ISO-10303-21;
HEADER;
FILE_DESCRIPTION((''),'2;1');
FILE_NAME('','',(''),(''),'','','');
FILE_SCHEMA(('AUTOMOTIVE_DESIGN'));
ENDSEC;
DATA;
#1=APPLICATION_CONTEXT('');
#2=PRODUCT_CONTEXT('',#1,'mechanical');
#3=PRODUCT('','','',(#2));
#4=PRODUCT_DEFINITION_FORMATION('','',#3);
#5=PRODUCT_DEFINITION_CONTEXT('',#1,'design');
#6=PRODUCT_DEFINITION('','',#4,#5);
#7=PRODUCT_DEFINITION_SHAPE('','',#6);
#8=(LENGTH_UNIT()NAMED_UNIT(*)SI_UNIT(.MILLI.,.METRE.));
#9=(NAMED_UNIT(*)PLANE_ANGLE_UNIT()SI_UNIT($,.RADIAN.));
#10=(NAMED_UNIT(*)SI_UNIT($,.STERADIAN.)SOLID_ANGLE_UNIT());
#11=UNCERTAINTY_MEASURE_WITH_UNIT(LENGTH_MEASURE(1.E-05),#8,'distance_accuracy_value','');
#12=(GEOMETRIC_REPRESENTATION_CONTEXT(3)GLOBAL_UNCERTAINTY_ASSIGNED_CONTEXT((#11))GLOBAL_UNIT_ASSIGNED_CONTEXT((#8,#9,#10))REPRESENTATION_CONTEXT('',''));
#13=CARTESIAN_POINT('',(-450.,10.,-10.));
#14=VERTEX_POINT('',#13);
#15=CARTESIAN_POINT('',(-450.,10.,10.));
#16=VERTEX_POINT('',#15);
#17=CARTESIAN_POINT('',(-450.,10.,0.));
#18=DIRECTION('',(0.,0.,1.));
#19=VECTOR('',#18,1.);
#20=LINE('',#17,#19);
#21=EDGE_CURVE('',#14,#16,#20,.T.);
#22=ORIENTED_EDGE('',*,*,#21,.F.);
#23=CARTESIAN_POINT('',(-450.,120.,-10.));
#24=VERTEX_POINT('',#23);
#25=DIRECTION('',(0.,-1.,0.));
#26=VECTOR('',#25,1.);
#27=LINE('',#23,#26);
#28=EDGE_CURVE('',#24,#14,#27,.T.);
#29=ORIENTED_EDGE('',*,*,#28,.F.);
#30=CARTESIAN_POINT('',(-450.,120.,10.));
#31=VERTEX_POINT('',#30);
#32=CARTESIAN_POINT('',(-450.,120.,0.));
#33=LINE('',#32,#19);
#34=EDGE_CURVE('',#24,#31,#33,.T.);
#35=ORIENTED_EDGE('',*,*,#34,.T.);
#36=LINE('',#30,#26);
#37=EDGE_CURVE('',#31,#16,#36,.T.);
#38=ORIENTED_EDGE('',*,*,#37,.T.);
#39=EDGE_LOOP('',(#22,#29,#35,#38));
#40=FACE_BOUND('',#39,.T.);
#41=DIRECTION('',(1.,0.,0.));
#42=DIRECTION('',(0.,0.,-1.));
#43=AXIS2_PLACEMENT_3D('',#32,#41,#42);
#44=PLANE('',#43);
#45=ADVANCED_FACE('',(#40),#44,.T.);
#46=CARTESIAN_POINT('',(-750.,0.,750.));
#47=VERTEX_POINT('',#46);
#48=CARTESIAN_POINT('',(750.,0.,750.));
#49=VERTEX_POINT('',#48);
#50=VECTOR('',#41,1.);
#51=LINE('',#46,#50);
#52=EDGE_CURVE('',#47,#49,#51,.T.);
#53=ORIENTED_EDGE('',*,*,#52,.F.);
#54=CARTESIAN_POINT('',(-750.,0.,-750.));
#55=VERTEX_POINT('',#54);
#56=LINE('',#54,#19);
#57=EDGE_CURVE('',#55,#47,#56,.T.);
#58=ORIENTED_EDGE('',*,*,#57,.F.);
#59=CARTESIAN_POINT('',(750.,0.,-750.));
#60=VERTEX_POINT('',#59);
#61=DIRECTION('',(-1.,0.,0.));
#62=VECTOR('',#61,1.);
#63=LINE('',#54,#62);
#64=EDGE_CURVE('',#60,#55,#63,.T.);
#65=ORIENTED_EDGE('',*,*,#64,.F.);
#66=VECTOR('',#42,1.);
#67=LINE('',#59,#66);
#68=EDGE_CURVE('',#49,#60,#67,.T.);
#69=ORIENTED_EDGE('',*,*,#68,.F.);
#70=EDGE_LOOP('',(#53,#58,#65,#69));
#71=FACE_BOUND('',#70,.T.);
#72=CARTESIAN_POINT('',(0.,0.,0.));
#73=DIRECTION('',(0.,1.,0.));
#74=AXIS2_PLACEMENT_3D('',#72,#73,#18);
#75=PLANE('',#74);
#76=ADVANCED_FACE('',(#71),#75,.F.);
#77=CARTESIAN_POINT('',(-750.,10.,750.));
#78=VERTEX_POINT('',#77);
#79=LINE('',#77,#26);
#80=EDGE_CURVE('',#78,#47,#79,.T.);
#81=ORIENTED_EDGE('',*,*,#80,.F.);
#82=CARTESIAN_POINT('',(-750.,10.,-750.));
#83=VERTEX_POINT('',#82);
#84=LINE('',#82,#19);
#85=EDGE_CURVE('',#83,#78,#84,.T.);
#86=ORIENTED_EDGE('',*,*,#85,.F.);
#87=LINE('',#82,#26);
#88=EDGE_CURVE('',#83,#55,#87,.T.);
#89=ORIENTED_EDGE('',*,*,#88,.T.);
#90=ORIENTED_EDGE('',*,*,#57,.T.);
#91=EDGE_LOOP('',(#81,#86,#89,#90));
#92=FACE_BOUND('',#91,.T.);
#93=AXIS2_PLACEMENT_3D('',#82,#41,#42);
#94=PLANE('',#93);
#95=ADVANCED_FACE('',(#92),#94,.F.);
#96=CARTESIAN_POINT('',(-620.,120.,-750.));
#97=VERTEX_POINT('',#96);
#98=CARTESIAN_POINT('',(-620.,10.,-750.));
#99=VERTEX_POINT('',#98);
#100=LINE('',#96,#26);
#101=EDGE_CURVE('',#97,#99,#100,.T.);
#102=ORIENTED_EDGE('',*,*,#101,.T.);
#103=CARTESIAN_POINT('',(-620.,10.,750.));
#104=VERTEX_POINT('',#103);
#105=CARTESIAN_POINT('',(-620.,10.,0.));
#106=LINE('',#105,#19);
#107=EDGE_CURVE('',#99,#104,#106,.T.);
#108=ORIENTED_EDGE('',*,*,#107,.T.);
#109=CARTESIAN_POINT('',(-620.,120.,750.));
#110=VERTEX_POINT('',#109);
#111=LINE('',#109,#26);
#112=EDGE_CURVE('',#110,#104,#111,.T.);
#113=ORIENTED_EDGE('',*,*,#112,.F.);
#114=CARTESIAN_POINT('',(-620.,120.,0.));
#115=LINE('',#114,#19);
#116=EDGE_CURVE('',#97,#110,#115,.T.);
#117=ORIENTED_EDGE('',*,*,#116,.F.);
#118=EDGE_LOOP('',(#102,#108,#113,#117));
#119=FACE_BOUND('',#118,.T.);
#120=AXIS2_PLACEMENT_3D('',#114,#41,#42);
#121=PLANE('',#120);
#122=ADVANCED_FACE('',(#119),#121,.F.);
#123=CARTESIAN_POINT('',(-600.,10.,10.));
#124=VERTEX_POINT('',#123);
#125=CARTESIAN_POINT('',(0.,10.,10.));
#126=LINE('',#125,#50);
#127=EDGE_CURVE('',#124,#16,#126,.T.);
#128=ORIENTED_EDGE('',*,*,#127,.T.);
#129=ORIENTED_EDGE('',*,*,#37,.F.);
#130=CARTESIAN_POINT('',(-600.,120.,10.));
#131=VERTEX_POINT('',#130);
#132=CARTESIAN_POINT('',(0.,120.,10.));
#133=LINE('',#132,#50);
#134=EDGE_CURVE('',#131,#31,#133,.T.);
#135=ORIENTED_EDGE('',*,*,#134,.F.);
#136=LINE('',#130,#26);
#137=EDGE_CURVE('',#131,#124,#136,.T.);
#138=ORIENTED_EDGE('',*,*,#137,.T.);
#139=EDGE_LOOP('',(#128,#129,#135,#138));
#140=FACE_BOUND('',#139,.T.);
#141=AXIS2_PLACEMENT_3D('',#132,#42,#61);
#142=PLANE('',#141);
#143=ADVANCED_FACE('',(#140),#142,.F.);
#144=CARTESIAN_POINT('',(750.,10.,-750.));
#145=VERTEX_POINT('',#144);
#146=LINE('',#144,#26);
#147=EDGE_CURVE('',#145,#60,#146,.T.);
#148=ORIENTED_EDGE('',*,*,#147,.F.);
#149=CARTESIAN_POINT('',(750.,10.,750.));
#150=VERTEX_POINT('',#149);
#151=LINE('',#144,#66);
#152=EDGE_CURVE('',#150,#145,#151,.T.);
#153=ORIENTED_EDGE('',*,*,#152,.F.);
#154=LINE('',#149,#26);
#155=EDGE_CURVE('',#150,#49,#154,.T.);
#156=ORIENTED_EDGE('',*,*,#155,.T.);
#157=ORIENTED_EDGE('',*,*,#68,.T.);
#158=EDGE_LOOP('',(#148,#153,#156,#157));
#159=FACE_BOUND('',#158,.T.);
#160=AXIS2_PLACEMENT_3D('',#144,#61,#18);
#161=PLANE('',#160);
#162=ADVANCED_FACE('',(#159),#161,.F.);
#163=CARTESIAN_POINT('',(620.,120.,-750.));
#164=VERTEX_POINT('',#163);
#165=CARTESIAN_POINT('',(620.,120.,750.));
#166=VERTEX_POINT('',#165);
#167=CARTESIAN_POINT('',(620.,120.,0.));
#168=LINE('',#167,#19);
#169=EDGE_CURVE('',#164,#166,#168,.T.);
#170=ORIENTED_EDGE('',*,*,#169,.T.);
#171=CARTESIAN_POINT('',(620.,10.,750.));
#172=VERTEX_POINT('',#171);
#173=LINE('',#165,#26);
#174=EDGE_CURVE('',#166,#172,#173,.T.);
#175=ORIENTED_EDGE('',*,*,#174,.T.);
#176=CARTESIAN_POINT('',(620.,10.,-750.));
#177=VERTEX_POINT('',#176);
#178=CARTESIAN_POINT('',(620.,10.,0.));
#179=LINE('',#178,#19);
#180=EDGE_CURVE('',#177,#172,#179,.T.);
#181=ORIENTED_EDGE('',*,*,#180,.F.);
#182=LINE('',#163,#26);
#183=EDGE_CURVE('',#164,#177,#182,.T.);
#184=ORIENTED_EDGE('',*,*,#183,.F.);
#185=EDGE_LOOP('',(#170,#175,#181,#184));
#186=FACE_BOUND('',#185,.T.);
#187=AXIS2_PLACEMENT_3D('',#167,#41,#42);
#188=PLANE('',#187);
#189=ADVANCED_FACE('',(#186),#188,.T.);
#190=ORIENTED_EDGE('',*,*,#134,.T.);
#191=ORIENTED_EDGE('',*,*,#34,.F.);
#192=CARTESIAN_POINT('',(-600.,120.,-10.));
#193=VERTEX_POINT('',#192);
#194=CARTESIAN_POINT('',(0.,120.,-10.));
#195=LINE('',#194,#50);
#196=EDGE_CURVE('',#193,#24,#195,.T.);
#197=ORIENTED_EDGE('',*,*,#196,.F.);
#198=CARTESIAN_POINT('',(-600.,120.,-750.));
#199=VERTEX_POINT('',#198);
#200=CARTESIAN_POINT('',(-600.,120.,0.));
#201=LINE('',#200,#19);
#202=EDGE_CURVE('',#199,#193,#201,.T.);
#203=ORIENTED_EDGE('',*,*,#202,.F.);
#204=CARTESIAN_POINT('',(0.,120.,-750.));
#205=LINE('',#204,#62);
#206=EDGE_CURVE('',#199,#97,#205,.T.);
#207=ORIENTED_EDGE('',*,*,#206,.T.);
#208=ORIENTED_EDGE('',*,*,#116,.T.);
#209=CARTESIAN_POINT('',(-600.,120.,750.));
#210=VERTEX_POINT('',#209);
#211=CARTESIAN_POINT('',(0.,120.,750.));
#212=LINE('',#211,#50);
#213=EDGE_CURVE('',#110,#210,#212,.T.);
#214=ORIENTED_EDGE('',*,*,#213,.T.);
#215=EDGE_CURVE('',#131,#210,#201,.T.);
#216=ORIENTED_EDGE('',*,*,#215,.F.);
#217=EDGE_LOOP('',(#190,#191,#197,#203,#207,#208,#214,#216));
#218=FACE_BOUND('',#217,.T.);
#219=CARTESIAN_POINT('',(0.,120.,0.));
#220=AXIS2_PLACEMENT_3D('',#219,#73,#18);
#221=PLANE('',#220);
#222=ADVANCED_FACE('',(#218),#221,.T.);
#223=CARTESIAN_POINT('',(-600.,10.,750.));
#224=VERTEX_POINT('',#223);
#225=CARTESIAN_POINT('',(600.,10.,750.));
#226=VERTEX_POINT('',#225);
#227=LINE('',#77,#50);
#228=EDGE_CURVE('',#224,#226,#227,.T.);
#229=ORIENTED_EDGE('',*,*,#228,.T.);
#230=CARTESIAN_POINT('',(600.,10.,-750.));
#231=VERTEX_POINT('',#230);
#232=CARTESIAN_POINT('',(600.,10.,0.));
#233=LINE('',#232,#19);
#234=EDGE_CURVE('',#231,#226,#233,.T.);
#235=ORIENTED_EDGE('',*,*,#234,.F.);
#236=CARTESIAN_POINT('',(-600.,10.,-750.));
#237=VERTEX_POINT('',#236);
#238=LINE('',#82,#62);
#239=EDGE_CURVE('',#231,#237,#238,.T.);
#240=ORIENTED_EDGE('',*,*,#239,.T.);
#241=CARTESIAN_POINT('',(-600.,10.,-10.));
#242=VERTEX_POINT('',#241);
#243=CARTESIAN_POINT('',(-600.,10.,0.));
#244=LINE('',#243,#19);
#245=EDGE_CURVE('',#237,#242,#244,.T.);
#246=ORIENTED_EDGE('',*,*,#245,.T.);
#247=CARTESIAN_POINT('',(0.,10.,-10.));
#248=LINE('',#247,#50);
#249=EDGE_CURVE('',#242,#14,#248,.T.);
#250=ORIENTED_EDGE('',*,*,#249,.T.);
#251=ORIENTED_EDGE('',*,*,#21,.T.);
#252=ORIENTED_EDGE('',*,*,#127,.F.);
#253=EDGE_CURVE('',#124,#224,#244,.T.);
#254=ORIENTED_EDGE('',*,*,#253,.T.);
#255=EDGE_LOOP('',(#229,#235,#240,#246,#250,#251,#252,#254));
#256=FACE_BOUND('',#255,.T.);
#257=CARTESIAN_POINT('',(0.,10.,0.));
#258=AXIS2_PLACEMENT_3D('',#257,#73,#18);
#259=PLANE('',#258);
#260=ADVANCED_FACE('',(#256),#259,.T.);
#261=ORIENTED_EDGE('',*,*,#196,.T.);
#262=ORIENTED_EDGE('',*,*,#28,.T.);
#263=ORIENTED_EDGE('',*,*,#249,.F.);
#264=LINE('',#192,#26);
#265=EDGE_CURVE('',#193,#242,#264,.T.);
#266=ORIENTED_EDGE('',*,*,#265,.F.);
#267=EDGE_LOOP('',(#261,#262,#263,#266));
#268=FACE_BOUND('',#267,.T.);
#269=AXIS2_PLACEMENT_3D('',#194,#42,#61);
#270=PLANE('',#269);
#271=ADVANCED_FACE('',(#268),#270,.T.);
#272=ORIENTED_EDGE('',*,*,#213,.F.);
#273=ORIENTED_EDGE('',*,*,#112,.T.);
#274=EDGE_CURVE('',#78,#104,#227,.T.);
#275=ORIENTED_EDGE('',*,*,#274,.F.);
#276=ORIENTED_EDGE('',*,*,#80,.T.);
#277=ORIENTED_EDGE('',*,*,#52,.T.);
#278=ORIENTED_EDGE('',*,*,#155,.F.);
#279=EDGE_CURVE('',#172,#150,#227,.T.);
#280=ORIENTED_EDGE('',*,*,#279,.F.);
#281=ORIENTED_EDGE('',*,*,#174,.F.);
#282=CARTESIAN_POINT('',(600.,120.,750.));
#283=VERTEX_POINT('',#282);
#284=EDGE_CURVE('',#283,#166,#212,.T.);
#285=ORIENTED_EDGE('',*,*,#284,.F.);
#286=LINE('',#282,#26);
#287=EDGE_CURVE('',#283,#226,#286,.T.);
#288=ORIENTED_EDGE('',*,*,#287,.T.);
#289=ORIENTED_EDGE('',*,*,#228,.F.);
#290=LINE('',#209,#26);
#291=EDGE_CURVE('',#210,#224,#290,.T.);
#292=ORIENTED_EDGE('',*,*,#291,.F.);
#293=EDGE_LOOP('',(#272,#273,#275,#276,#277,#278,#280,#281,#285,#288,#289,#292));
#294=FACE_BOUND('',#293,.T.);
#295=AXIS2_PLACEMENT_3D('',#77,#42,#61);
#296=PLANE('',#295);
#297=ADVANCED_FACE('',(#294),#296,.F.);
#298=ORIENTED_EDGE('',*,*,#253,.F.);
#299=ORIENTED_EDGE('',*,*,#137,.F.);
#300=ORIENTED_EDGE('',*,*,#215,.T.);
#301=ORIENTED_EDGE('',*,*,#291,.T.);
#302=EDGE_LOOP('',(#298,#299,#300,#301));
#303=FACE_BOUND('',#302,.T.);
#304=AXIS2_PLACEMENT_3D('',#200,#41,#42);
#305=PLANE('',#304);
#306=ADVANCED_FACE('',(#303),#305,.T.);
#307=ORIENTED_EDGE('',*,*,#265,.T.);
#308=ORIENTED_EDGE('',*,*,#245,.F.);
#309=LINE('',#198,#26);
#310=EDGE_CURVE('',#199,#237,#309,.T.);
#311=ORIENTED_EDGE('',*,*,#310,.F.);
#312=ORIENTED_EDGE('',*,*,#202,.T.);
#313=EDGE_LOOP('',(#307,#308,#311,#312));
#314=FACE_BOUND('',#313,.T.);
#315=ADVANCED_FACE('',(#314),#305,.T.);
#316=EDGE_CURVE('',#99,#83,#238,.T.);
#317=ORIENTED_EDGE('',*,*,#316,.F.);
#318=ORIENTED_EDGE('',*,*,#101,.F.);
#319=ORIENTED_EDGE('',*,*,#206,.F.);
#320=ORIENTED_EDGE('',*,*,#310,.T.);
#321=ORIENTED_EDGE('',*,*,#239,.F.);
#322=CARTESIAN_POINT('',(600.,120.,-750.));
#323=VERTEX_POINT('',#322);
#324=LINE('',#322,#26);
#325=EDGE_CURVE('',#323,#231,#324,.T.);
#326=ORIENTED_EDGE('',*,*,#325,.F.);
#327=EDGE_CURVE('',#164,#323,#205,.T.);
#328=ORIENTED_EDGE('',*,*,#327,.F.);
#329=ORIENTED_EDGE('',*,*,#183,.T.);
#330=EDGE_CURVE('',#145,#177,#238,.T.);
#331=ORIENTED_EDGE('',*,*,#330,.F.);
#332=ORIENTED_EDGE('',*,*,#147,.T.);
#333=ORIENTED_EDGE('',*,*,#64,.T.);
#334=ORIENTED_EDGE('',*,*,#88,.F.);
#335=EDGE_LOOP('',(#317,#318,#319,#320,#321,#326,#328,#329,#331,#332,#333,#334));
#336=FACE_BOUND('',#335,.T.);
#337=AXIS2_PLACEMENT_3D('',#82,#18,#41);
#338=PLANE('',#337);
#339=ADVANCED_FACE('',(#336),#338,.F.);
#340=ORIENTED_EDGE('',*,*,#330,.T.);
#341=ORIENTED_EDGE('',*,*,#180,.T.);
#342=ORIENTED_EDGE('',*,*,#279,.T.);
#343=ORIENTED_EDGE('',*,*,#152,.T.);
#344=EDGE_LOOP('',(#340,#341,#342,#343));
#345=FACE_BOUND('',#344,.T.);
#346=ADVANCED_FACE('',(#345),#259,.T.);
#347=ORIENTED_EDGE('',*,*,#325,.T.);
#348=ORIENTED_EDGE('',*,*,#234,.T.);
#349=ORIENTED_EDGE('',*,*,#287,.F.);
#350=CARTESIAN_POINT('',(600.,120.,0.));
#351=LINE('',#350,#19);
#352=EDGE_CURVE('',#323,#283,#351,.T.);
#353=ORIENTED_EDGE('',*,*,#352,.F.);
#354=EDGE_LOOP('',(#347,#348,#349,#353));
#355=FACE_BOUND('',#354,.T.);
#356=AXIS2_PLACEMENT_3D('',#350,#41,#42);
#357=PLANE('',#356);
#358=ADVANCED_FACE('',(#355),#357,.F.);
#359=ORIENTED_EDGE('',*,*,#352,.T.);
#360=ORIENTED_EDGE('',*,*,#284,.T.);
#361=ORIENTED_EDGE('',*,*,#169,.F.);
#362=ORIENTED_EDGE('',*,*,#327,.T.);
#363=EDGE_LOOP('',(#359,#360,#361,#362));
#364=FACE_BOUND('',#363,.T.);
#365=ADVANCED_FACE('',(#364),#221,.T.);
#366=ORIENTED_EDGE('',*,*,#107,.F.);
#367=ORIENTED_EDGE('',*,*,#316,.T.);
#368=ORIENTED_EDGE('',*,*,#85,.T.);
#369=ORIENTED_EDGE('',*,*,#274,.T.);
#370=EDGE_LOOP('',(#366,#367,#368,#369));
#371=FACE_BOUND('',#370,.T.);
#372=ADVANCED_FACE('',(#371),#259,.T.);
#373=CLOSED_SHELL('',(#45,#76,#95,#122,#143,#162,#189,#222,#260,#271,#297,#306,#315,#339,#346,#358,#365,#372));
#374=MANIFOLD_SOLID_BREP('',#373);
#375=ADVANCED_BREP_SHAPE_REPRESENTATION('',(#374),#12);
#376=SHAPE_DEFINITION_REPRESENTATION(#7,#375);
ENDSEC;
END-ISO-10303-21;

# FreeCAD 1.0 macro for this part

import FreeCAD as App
import Part
import Sketcher

doc = App.newDocument("Part")
body = doc.addObject("PartDesign::Body", "Body")

sketch1 = doc.addObject("Sketcher::SketchObject", "Sketch")
body.addObject(sketch1)
sketch1.AttachmentSupport = (doc.XZ_Plane, [""])
sketch1.MapMode = "FlatFace"
sketch1.addGeometry([
    Part.LineSegment(App.Vector(-750, -750, 0), App.Vector(-750, 750, 0)),
    Part.LineSegment(App.Vector(-750, 750, 0), App.Vector(750, 750, 0)),
    Part.LineSegment(App.Vector(750, 750, 0), App.Vector(750, -750, 0)),
    Part.LineSegment(App.Vector(750, -750, 0), App.Vector(-750, -750, 0)),
], False)
sketch1.addConstraint([
    Sketcher.Constraint("Coincident", 0, 2, 1, 1),
    Sketcher.Constraint("Coincident", 1, 2, 2, 1),
    Sketcher.Constraint("Coincident", 2, 2, 3, 1),
    Sketcher.Constraint("Coincident", 3, 2, 0, 1),
    Sketcher.Constraint("Vertical", 0),
    Sketcher.Constraint("Horizontal", 1),
    Sketcher.Constraint("Vertical", 2),
    Sketcher.Constraint("Horizontal", 3),
    Sketcher.Constraint("Symmetric", 0, 2, 2, 2, -1, 1),
    Sketcher.Constraint("Equal", 3, 0),
    Sketcher.Constraint("DistanceX", 1, 1, 1, 2, 1500.0),
])
pad1 = doc.addObject("PartDesign::Pad", "Pad")
body.addObject(pad1)
pad1.Profile = sketch1
pad1.Length = 10
pad1.Reversed = True

sketch2 = doc.addObject("Sketcher::SketchObject", "Sketch001")
body.addObject(sketch2)
sketch2.AttachmentSupport = (doc.XZ_Plane, [""])
sketch2.MapMode = "FlatFace"
sketch2.AttachmentOffset = App.Placement(App.Vector(0, 0, -10), App.Rotation())
sketch2.addGeometry([
    Part.LineSegment(App.Vector(-600, -750, 0), App.Vector(-620, -750, 0)),
    Part.LineSegment(App.Vector(-620, -750, 0), App.Vector(-620, 750, 0)),
    Part.LineSegment(App.Vector(-620, 750, 0), App.Vector(-600, 750, 0)),
    Part.LineSegment(App.Vector(-600, 750, 0), App.Vector(-600, 10, 0)),
    Part.LineSegment(App.Vector(-600, 10, 0), App.Vector(-450, 10, 0)),
    Part.LineSegment(App.Vector(-450, 10, 0), App.Vector(-450, -10, 0)),
    Part.LineSegment(App.Vector(-450, -10, 0), App.Vector(-600, -10, 0)),
    Part.LineSegment(App.Vector(-600, -10, 0), App.Vector(-600, -750, 0)),
    Part.LineSegment(App.Vector(600, -750, 0), App.Vector(600, 750, 0)),
    Part.LineSegment(App.Vector(600, 750, 0), App.Vector(620, 750, 0)),
    Part.LineSegment(App.Vector(620, 750, 0), App.Vector(620, -750, 0)),
    Part.LineSegment(App.Vector(620, -750, 0), App.Vector(600, -750, 0)),
], False)
sketch2.addConstraint([
    Sketcher.Constraint("Coincident", 0, 2, 1, 1),
    Sketcher.Constraint("Coincident", 1, 2, 2, 1),
    Sketcher.Constraint("Coincident", 2, 2, 3, 1),
    Sketcher.Constraint("Coincident", 3, 2, 4, 1),
    Sketcher.Constraint("Coincident", 4, 2, 5, 1),
    Sketcher.Constraint("Coincident", 5, 2, 6, 1),
    Sketcher.Constraint("Coincident", 6, 2, 7, 1),
    Sketcher.Constraint("Coincident", 7, 2, 0, 1),
    Sketcher.Constraint("Coincident", 8, 2, 9, 1),
    Sketcher.Constraint("Coincident", 9, 2, 10, 1),
    Sketcher.Constraint("Coincident", 10, 2, 11, 1),
    Sketcher.Constraint("Coincident", 11, 2, 8, 1),
    Sketcher.Constraint("Horizontal", 0),
    Sketcher.Constraint("Vertical", 1),
    Sketcher.Constraint("Horizontal", 2),
    Sketcher.Constraint("Vertical", 3),
    Sketcher.Constraint("Horizontal", 4),
    Sketcher.Constraint("Vertical", 5),
    Sketcher.Constraint("Horizontal", 6),
    Sketcher.Constraint("Vertical", 7),
    Sketcher.Constraint("Vertical", 8),
    Sketcher.Constraint("Horizontal", 9),
    Sketcher.Constraint("Vertical", 10),
    Sketcher.Constraint("Horizontal", 11),
    Sketcher.Constraint("Symmetric", 7, 2, 8, 2, -1, 1),
    Sketcher.Constraint("Symmetric", 1, 2, 10, 2, -1, 1),
    Sketcher.Constraint("Symmetric", 2, 2, 8, 2, -2),
    Sketcher.Constraint("Equal", 11, 5),
    Sketcher.Constraint("Equal", 3, 7),
    Sketcher.Constraint("DistanceX", 0, 2, 0, 1, 20.0),
    Sketcher.Constraint("DistanceX", 4, 1, 4, 2, 150.0),
    Sketcher.Constraint("DistanceY", 1, 1, 1, 2, 1500.0),
    Sketcher.Constraint("DistanceX", 0, 2, -1, 1, 620.0),
])
pad2 = doc.addObject("PartDesign::Pad", "Pad001")
body.addObject(pad2)
pad2.Profile = sketch2
pad2.Length = 110
pad2.Reversed = True

doc.recompute()
